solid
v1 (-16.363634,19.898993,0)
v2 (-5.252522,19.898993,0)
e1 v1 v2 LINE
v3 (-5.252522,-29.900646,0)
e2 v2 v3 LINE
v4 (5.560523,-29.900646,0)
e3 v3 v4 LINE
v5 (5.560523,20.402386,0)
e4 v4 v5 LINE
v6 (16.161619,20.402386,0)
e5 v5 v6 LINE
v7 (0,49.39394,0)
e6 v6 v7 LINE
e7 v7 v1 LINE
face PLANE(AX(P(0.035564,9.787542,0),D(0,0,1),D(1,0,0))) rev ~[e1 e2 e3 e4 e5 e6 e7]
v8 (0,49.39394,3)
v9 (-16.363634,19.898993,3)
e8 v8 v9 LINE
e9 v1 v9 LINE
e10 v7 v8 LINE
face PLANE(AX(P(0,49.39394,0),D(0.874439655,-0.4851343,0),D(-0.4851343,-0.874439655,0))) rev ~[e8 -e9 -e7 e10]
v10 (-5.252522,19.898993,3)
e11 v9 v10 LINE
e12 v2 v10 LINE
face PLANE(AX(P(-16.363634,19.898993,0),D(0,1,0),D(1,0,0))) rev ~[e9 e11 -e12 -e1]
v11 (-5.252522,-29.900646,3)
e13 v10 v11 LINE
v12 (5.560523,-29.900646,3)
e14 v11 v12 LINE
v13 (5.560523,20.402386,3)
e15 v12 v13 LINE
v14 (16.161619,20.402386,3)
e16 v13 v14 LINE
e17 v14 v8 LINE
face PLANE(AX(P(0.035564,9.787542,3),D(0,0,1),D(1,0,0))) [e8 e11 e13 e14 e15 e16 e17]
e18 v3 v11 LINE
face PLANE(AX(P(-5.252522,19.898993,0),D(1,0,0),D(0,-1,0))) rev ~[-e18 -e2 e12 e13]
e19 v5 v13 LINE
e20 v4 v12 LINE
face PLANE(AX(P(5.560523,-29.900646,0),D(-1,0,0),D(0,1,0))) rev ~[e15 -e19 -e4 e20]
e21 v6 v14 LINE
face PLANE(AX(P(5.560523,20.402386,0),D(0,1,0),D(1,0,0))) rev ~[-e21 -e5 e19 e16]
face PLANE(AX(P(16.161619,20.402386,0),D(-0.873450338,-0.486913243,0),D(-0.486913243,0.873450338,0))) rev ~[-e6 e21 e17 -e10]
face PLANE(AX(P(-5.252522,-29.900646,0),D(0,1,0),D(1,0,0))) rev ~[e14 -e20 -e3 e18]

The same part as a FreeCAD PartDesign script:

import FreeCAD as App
import Part
import Sketcher
Q = App.Units.Quantity

doc = App.newDocument("Part")
body = doc.addObject("PartDesign::Body", "Body")

sketch1 = body.newObject("Sketcher::SketchObject", "Sketch")
sketch1.AttachmentSupport = (doc.getObject("XY_Plane"), [""])
sketch1.MapMode = "FlatFace"
sketch1.addGeometry([
    Part.LineSegment(App.Vector(0, 49.39394, 0), App.Vector(-16.363634, 19.898993, 0)),
    Part.LineSegment(App.Vector(-16.363634, 19.898993, 0), App.Vector(-5.252522, 19.898993, 0)),
    Part.LineSegment(App.Vector(-5.252522, 19.898993, 0), App.Vector(-5.252522, -29.900646, 0)),
    Part.LineSegment(App.Vector(-5.252522, -29.900646, 0), App.Vector(5.560523, -29.900646, 0)),
    Part.LineSegment(App.Vector(5.560523, -29.900646, 0), App.Vector(5.560523, 20.402386, 0)),
    Part.LineSegment(App.Vector(5.560523, 20.402386, 0), App.Vector(16.161619, 20.402386, 0)),
    Part.LineSegment(App.Vector(16.161619, 20.402386, 0), App.Vector(0, 49.39394, 0)),
], False)
sketch1.addConstraint([
    Sketcher.Constraint("Coincident", 0, 2, 1, 1),
    Sketcher.Constraint("Coincident", 1, 2, 2, 1),
    Sketcher.Constraint("Coincident", 2, 2, 3, 1),
    Sketcher.Constraint("Coincident", 3, 2, 4, 1),
    Sketcher.Constraint("Coincident", 4, 2, 5, 1),
    Sketcher.Constraint("Coincident", 5, 2, 6, 1),
    Sketcher.Constraint("Coincident", 6, 2, 0, 1),
    Sketcher.Constraint("Horizontal", 1),
    Sketcher.Constraint("Vertical", 2),
    Sketcher.Constraint("Horizontal", 3),
    Sketcher.Constraint("Vertical", 4),
    Sketcher.Constraint("Horizontal", 5),
    Sketcher.Constraint("PointOnObject", 6, 2, -2),
    Sketcher.Constraint("DistanceY", 2, 2, 2, 1, Q("49.799639 mm")),
    Sketcher.Constraint("Distance", 0, Q("33.730111 mm")),
    Sketcher.Constraint("Distance", 6, Q("33.191989 mm")),
    Sketcher.Constraint("DistanceX", 1, 1, 1, 2, Q("11.111112 mm")),
    Sketcher.Constraint("DistanceX", 3, 1, 3, 2, Q("10.813045 mm")),
    Sketcher.Constraint("DistanceX", 5, 1, 5, 2, Q("10.601096 mm")),
    Sketcher.Constraint("DistanceY", 4, 1, 4, 2, Q("50.303032 mm")),
    Sketcher.Constraint("DistanceY", -1, 1, 6, 2, Q("49.39394 mm")),
])
pad1 = body.newObject("PartDesign::Pad", "Pad")
pad1.Profile = sketch1
pad1.Length = 3

doc.recompute()
